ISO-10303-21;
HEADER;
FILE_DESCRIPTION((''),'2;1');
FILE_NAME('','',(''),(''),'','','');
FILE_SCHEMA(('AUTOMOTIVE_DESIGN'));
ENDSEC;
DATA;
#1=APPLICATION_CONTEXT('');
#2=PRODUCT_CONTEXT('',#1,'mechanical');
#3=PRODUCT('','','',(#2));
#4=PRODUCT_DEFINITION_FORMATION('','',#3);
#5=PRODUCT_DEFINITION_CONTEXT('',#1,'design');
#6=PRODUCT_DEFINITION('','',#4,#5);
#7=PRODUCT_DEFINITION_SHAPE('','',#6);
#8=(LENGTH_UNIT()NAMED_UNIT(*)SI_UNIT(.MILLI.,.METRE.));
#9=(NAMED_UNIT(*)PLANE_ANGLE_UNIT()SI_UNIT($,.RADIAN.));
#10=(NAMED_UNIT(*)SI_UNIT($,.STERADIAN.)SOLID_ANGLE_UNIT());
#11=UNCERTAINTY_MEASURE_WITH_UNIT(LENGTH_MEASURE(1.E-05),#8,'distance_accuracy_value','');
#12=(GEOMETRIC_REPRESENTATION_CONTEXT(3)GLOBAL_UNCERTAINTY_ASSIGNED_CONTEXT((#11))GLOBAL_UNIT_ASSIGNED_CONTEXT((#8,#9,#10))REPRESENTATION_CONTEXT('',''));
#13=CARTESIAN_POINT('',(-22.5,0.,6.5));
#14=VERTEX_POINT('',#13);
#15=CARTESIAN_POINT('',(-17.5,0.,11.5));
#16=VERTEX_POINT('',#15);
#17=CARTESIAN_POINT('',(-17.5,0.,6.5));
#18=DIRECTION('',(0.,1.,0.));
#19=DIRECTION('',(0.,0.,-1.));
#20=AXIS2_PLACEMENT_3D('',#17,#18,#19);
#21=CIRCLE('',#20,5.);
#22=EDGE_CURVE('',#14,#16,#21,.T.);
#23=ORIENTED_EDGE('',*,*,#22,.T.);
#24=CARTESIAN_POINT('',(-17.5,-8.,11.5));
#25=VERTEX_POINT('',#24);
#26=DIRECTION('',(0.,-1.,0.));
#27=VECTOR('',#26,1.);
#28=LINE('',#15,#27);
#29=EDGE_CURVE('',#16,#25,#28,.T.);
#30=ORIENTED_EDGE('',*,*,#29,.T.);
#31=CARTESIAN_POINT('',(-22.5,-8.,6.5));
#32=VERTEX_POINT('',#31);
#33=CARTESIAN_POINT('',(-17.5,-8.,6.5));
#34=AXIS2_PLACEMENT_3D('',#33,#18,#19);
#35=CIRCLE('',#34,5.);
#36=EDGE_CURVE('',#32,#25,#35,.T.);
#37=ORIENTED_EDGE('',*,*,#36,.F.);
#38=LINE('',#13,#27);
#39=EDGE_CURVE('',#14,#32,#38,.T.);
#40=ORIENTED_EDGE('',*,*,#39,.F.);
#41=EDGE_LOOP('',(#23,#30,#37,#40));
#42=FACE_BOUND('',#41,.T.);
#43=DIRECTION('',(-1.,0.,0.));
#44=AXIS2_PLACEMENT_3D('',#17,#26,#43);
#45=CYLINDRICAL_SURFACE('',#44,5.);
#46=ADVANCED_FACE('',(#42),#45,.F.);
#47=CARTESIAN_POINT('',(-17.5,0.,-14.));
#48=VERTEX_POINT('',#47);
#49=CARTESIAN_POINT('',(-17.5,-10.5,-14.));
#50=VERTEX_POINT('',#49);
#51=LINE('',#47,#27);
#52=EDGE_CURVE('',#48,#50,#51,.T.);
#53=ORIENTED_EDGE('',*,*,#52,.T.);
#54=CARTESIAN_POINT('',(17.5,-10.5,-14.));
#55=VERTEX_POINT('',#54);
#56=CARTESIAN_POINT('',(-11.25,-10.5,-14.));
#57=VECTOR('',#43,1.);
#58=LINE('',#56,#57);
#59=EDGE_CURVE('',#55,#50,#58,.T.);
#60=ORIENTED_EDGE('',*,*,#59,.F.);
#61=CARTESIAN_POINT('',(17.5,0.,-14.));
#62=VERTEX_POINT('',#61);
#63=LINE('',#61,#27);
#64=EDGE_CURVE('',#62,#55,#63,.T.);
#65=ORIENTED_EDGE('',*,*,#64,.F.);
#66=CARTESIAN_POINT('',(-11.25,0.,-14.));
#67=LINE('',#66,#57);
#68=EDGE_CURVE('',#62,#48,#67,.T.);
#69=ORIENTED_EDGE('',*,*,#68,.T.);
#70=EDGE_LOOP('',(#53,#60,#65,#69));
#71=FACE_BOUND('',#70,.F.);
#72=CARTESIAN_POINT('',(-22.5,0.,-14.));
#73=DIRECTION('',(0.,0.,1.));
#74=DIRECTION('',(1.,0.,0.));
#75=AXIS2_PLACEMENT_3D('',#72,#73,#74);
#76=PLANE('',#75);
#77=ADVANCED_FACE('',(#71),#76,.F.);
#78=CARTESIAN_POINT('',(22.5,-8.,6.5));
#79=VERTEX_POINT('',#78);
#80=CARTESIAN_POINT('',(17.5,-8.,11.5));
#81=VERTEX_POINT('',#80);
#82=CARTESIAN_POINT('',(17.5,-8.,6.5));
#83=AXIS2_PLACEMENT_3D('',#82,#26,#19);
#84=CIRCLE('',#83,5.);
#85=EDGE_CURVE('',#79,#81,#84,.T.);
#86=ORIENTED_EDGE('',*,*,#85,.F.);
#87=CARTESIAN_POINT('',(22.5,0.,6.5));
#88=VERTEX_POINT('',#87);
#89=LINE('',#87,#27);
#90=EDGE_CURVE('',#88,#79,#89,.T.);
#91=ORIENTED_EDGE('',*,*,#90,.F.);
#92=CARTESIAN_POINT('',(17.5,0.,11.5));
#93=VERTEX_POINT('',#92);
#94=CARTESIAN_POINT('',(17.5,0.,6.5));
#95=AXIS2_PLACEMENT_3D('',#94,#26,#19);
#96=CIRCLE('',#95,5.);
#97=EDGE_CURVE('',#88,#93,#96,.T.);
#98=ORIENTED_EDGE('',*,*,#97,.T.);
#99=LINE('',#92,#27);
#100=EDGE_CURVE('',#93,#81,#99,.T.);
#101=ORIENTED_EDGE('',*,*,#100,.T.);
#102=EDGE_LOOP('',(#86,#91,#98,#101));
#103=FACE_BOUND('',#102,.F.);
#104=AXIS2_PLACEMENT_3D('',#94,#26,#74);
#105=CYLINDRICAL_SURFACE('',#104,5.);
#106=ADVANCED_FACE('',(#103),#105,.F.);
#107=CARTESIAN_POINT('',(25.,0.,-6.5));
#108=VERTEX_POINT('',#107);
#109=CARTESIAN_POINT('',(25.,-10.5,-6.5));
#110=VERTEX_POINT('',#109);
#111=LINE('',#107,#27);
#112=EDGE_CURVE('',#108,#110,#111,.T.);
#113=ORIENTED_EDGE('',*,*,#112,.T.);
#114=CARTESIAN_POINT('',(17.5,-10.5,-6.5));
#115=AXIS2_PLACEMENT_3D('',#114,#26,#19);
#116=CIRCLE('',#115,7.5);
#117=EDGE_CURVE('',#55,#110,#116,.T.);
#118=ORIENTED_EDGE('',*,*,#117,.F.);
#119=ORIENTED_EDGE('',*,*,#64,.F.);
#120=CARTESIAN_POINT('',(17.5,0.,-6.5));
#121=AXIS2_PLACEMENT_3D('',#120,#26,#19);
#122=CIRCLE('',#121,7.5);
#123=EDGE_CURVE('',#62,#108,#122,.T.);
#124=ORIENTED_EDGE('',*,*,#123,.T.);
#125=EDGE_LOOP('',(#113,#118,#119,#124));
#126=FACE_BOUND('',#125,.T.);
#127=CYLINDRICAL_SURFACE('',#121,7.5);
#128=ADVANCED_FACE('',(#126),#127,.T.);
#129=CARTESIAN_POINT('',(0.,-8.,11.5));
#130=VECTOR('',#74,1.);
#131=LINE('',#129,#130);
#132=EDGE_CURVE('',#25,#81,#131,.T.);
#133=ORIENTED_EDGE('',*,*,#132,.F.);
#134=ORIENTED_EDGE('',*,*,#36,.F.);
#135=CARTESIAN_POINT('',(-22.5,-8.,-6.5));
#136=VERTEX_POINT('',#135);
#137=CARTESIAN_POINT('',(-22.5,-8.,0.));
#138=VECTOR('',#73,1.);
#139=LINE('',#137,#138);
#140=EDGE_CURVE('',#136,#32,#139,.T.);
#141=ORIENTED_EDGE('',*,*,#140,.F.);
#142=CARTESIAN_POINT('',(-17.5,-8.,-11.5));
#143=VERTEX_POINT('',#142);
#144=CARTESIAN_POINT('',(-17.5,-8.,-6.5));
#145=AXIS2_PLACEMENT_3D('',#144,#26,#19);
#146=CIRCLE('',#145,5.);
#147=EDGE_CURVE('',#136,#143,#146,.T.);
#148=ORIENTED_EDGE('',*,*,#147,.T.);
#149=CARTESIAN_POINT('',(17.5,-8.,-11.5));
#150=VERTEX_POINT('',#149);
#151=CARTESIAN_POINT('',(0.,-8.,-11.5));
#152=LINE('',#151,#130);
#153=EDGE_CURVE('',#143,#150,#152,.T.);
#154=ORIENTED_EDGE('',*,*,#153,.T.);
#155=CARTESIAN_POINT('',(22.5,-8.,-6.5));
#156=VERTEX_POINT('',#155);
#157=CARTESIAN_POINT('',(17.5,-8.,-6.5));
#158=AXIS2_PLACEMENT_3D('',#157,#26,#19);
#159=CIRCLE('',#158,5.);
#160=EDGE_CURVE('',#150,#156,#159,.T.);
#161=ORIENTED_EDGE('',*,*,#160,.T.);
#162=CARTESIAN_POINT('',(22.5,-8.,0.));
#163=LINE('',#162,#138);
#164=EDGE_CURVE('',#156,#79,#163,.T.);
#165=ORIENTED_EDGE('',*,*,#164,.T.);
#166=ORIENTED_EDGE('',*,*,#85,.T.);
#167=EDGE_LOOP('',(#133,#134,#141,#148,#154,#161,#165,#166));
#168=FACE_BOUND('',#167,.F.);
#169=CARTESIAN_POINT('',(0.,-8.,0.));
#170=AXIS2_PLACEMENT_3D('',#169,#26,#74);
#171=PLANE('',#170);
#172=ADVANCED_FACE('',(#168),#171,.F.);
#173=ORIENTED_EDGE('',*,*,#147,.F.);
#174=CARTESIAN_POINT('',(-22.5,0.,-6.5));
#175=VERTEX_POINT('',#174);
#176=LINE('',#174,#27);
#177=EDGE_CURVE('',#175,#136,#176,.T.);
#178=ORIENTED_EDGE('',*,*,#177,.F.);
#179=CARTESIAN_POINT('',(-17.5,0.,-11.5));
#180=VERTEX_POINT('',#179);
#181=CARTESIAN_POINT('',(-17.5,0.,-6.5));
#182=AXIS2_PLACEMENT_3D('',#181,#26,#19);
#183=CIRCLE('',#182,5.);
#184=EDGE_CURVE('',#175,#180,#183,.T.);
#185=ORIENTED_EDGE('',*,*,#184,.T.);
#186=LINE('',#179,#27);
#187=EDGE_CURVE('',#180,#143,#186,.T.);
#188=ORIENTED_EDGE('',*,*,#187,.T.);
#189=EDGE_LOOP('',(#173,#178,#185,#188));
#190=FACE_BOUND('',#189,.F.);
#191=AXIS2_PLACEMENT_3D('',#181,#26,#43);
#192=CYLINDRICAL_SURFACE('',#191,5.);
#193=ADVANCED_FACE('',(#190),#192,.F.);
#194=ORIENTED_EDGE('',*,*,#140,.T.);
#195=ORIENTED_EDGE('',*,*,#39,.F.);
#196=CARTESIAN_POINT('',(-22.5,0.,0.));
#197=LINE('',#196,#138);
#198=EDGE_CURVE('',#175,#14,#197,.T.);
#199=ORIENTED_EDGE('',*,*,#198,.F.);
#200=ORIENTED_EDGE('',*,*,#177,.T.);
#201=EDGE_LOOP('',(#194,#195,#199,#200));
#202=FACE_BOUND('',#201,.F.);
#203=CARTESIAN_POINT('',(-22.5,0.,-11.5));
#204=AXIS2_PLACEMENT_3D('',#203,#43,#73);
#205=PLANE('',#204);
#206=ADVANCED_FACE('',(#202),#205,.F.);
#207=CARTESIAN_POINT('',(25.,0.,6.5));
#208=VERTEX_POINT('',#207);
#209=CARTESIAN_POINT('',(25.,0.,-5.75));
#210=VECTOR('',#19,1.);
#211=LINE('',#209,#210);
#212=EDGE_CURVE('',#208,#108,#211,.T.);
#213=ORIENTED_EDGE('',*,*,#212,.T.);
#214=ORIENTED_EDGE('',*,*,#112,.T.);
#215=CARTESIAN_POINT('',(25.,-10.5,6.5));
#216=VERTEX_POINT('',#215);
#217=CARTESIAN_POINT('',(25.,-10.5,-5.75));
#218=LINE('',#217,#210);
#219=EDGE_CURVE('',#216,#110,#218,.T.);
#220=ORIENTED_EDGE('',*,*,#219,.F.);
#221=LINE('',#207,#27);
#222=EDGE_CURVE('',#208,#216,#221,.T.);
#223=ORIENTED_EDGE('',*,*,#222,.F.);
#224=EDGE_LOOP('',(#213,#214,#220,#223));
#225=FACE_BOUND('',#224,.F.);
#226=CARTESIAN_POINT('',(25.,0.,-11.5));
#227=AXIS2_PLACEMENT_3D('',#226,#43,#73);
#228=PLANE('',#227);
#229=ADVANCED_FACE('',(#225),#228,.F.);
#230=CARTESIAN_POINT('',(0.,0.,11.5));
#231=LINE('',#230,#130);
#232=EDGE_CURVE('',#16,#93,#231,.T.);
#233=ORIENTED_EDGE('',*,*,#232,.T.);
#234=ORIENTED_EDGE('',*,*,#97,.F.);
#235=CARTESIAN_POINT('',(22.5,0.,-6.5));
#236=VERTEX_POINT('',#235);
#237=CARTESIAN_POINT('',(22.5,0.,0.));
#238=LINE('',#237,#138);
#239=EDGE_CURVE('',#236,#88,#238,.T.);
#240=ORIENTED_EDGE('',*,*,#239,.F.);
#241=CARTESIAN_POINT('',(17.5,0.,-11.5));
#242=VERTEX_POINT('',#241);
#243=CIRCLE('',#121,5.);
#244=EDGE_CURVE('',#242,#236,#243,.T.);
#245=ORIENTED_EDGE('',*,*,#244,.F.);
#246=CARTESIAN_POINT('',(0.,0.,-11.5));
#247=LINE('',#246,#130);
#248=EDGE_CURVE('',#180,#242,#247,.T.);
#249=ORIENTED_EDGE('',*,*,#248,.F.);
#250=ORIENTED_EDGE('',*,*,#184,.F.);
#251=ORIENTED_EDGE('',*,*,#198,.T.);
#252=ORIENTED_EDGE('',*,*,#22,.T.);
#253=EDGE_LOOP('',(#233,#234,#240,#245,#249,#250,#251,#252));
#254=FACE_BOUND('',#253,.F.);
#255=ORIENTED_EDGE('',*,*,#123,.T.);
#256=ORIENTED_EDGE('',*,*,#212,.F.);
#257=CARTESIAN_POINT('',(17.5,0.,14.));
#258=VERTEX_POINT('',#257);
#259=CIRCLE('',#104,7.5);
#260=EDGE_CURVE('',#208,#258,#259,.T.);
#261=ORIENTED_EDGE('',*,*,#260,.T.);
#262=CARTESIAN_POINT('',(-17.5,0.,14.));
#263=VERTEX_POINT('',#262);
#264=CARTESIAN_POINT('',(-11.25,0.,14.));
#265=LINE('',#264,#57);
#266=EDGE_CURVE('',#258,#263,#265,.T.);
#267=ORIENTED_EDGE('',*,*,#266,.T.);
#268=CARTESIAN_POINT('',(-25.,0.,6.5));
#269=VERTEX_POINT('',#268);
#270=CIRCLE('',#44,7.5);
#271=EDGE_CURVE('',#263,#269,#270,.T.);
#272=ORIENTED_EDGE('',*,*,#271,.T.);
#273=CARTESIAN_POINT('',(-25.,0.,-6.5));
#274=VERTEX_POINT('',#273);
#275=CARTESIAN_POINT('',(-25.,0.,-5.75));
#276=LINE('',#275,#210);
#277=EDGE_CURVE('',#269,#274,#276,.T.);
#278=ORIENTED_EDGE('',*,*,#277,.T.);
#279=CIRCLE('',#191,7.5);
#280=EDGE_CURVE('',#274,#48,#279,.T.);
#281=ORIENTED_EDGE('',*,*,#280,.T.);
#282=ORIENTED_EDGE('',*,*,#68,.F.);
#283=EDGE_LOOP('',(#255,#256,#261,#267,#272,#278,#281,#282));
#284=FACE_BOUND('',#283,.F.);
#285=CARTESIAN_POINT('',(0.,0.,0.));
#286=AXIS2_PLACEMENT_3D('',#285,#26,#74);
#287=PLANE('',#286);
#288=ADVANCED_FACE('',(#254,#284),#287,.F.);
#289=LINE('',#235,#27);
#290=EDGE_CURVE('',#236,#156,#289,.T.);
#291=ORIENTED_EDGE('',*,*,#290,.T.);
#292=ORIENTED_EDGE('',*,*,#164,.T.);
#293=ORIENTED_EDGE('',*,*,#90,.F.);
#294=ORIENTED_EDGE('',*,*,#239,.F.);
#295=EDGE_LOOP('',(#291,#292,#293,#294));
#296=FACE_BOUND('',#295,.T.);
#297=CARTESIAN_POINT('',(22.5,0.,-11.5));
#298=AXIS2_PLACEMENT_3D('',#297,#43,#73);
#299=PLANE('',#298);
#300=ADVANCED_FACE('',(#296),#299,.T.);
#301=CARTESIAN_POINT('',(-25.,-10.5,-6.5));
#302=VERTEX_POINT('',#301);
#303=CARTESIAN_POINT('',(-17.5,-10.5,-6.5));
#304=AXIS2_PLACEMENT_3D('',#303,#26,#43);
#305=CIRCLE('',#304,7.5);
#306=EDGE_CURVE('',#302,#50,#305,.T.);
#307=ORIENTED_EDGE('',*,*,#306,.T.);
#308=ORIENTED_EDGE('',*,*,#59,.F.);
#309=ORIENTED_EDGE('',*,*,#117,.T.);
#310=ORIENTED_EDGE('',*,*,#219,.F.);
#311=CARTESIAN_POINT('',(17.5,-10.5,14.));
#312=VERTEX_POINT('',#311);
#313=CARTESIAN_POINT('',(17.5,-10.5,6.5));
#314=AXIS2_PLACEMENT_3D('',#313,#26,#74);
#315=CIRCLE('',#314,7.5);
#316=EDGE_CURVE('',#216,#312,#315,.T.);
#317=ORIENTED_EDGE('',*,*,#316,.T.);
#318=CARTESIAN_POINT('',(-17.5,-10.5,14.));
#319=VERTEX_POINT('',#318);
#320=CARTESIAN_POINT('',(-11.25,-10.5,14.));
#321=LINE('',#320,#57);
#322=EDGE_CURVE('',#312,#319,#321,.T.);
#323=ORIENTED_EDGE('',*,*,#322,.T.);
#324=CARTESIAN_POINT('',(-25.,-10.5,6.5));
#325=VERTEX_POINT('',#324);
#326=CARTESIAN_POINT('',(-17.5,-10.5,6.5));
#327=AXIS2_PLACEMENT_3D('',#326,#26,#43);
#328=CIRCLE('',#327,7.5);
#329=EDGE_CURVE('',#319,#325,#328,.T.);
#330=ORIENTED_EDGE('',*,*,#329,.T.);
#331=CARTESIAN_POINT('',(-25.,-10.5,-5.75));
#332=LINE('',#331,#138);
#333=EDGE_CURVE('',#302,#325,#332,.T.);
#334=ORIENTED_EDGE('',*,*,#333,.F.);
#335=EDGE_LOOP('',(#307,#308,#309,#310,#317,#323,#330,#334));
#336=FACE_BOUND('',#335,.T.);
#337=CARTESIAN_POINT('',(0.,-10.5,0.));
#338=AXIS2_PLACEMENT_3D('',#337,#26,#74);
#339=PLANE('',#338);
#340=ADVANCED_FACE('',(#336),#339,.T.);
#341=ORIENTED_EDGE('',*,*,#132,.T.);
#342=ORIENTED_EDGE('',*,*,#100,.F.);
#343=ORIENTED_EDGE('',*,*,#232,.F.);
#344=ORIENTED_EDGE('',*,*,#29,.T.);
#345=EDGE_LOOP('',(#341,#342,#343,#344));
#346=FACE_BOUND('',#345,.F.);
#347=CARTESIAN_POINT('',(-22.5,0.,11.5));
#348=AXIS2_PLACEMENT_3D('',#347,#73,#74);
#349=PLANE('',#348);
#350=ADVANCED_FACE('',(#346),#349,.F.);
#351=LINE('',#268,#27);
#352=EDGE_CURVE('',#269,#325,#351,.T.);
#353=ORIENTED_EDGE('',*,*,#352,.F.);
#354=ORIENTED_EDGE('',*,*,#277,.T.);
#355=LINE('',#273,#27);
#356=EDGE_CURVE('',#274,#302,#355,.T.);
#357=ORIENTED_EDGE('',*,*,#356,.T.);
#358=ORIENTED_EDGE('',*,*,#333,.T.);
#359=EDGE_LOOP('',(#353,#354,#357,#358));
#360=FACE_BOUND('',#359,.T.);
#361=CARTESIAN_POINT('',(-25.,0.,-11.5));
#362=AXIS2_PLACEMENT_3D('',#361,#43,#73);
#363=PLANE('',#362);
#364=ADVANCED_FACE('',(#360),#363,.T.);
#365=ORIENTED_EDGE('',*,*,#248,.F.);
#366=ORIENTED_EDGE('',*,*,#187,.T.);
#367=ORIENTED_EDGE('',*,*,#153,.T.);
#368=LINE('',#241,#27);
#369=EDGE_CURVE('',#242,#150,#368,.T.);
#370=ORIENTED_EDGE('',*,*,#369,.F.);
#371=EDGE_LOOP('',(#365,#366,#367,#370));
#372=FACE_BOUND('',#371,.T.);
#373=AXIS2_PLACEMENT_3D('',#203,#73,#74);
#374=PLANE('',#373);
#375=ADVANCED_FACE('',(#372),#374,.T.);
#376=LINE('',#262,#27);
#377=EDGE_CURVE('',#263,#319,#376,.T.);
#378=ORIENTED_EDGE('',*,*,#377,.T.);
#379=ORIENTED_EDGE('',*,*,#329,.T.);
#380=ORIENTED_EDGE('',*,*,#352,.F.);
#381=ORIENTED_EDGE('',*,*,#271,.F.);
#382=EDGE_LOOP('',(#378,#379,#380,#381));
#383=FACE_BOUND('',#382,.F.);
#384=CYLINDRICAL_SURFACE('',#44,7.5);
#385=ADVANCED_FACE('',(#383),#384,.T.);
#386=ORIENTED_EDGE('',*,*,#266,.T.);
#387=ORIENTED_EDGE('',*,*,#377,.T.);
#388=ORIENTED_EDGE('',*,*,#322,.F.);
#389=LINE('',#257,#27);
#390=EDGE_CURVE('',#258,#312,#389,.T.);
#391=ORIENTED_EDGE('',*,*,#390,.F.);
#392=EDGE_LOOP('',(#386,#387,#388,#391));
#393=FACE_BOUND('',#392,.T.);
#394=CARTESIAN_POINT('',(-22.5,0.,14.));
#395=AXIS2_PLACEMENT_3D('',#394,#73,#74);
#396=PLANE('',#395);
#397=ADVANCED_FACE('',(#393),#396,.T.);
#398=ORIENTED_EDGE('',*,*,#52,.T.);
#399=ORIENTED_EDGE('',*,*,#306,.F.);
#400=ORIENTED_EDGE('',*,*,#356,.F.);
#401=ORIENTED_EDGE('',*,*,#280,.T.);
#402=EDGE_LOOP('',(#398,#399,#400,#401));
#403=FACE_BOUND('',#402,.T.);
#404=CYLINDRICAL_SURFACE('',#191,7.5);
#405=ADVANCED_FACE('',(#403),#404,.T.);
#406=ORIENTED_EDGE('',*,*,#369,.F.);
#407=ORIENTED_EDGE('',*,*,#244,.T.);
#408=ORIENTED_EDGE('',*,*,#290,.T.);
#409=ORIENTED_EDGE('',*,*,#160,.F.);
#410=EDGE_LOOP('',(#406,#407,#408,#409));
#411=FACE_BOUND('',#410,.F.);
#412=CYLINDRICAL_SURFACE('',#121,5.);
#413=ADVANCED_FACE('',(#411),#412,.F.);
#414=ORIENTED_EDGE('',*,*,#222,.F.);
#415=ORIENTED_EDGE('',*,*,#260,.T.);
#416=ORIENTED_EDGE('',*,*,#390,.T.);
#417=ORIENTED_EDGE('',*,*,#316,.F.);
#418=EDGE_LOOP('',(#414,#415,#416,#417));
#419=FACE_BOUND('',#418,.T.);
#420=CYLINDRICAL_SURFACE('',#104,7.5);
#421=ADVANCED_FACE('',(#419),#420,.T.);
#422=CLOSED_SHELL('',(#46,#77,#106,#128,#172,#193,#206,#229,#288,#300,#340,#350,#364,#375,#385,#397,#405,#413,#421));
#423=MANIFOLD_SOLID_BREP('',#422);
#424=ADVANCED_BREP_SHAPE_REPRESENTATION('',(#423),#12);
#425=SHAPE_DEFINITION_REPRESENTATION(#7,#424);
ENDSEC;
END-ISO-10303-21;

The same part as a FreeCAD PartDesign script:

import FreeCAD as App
import Part
import Sketcher

V = App.Vector


def edges_at(feature, points):
    """Names of the edges that pass closest to the given points."""
    edges = feature.Shape.Edges
    near = lambda p: min(range(len(edges)), key=lambda i: edges[i].distToShape(Part.Vertex(*p))[0])
    return sorted({f"Edge{near(p) + 1}" for p in points})


def faces_at(feature, points):
    """Names of the faces that lie closest to the given points."""
    faces = feature.Shape.Faces
    near = lambda p: min(range(len(faces)), key=lambda i: faces[i].distToShape(Part.Vertex(*p))[0])
    return sorted({f"Face{near(p) + 1}" for p in points})


def add_polygon(sketch, points):
    """Adds a closed chain of lines whose ends are joined by coincident constraints."""
    first, n = sketch.GeometryCount, len(points)
    for a, b in zip(points, points[1:] + points[:1]):
        sketch.addGeometry(Part.LineSegment(App.Vector(*a, 0), App.Vector(*b, 0)), False)
    for i in range(n):
        sketch.addConstraint(Sketcher.Constraint("Coincident", first + i, 2, first + (i + 1) % n, 1))

doc = App.newDocument("Part")
body = doc.addObject("PartDesign::Body", "Body")

sketch1 = body.newObject("Sketcher::SketchObject", "Sketch")
sketch1.AttachmentSupport = (doc.getObject("XZ_Plane"), [""])
sketch1.MapMode = "FlatFace"
add_polygon(sketch1, [(-22, 12), (-22, -12), (22, -12), (22, 12)])
sketch1.addConstraint([
    Sketcher.Constraint("Vertical", 0),
    Sketcher.Constraint("Horizontal", 1),
    Sketcher.Constraint("Vertical", 2),
    Sketcher.Constraint("Horizontal", 3),
    Sketcher.Constraint("Symmetric", 0, 2, 2, 2, -1, 1),
    Sketcher.Constraint("DistanceX", 1, 1, 1, 2, 45.0),
    Sketcher.Constraint("DistanceY", 0, 2, 0, 1, 23.0),
])
pad1 = body.newObject("PartDesign::Pad", "Pad")
pad1.Profile = sketch1
pad1.Length = 8
doc.recompute()

fillet = body.newObject("PartDesign::Fillet", "Fillet")
fillet.Base = (pad1, edges_at(pad1, [
    (22.5, -4, 11.5),
    (-22.5, -4, 11.5),
    (22.5, -4, -11.5),
    (-22.5, -4, -11.5),
]))
fillet.Radius = 5
doc.recompute()

thickness = body.newObject("PartDesign::Thickness", "Thickness")
thickness.Base = (fillet, faces_at(fillet, [(0, 0, 0)]))
thickness.Value = 2.5
thickness.Reversed = False
thickness.Join = "Intersection"

doc.recompute()
